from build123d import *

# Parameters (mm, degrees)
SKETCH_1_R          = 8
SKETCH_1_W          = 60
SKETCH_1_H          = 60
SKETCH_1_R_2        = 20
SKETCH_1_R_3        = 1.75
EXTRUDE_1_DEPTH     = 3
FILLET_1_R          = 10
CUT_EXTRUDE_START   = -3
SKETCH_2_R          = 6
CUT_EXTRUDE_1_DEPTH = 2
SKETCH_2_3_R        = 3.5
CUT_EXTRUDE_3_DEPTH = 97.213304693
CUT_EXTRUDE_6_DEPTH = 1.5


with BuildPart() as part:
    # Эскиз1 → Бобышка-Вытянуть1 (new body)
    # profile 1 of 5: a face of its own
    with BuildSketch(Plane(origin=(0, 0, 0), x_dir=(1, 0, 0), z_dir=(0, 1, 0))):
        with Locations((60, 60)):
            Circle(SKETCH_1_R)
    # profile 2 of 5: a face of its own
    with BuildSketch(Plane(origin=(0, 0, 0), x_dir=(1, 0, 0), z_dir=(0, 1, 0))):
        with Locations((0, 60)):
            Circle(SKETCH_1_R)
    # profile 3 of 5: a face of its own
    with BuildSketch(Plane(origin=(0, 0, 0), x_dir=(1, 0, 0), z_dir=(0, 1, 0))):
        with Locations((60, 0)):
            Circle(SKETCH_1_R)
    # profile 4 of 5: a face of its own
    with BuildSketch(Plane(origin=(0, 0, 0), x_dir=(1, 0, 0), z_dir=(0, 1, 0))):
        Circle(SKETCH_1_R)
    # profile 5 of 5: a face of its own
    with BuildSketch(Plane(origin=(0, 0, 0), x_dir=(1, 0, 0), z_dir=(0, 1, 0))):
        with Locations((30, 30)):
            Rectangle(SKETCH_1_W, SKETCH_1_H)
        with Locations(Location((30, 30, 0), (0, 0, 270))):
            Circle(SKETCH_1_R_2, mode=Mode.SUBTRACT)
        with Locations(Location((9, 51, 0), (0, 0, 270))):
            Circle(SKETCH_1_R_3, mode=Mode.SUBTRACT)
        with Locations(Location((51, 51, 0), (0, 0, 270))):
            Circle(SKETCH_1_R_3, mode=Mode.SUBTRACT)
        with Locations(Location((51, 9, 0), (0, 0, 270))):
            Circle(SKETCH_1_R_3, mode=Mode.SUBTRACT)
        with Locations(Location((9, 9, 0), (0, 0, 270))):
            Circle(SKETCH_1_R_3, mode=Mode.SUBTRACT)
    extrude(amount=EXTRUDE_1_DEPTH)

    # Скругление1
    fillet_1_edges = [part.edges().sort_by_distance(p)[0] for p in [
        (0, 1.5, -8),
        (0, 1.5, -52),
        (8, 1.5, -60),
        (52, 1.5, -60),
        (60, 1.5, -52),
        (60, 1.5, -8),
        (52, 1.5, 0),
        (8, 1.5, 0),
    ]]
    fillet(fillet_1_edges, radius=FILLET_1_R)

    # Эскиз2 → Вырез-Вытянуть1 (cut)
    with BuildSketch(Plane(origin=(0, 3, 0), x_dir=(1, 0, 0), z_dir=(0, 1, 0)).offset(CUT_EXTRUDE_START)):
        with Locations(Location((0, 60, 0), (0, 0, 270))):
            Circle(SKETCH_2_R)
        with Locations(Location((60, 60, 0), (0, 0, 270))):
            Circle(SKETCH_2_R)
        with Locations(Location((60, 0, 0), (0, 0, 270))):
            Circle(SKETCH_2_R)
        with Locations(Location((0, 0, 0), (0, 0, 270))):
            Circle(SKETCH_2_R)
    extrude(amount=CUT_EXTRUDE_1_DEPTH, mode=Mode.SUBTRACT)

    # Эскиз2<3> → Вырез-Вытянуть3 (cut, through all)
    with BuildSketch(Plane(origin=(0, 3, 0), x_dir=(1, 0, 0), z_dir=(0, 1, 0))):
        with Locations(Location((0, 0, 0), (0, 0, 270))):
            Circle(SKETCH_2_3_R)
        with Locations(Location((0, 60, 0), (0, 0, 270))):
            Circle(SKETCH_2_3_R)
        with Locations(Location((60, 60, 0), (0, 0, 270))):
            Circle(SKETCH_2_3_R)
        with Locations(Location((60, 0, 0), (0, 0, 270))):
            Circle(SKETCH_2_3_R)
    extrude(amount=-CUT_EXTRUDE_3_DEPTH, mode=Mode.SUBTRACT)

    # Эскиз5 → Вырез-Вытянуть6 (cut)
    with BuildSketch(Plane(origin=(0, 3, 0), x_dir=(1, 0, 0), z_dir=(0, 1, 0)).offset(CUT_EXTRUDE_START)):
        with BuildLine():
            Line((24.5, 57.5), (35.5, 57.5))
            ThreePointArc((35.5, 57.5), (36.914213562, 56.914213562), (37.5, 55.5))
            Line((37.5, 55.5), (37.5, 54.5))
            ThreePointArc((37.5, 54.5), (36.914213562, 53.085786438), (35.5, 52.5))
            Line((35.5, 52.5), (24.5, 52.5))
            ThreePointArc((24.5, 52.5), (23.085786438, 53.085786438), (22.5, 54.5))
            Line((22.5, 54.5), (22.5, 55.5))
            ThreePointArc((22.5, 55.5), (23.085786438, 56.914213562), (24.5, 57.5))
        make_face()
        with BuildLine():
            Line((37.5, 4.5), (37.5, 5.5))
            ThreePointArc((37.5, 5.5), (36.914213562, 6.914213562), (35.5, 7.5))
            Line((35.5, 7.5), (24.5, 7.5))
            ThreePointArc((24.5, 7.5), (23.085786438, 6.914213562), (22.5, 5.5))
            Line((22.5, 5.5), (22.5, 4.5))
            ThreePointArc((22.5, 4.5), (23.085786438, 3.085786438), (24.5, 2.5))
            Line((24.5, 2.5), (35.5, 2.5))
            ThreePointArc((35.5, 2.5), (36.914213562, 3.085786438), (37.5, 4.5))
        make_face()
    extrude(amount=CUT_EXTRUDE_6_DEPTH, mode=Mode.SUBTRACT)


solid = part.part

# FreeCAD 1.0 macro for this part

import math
import FreeCAD as App
import Part
import Sketcher

V = App.Vector
Q = App.Units.Quantity


def edges_at(feature, points):
    """Names of the edges that pass closest to the given points."""
    edges = feature.Shape.Edges
    near = lambda p: min(range(len(edges)), key=lambda i: edges[i].distToShape(Part.Vertex(*p))[0])
    return sorted({f"Edge{near(p) + 1}" for p in points})

doc = App.newDocument("Part")
body = doc.addObject("PartDesign::Body", "Body")

# Sketch on XZ plane
sketch1 = body.newObject("Sketcher::SketchObject", "Sketch")
sketch1.AttachmentSupport = (doc.getObject("XZ_Plane"), [""])
sketch1.MapMode = "FlatFace"
sketch1.addGeometry(Part.ArcOfCircle(Part.Circle(V(60, -60, 0), V(0, 0, 1), 8), math.radians(180), math.radians(450)), False)
sketch1.addGeometry(Part.LineSegment(V(52, -60, 0), V(8, -60, 0)), False)
sketch1.addGeometry(Part.ArcOfCircle(Part.Circle(V(0, -60, 0), V(0, 0, 1), 8), math.radians(90), math.radians(360)), False)
sketch1.addGeometry(Part.LineSegment(V(0, -52, 0), V(0, -8, 0)), False)
sketch1.addGeometry(Part.ArcOfCircle(Part.Circle(V(0, 0, 0), V(0, 0, 1), 8), math.radians(0), math.radians(270)), False)
sketch1.addGeometry(Part.LineSegment(V(8, 0, 0), V(52, 0, 0)), False)
sketch1.addGeometry(Part.ArcOfCircle(Part.Circle(V(60, 0, 0), V(0, 0, 1), 8), math.radians(-90), math.radians(180)), False)
sketch1.addGeometry(Part.LineSegment(V(60, -8, 0), V(60, -52, 0)), False)
sketch1.addGeometry(Part.Circle(V(51, -51, 0), V(0, 0, 1), 1.75), False)
sketch1.addGeometry(Part.Circle(V(9, -9, 0), V(0, 0, 1), 1.75), False)
sketch1.addGeometry(Part.Circle(V(51, -9, 0), V(0, 0, 1), 1.75), False)
sketch1.addGeometry(Part.Circle(V(9, -51, 0), V(0, 0, 1), 1.75), False)
sketch1.addGeometry(Part.Circle(V(30, -30, 0), V(0, 0, 1), 20), False)
sketch1.addConstraint(Sketcher.Constraint("Coincident", 0, 1, 1, 1))
sketch1.addConstraint(Sketcher.Constraint("Coincident", 1, 2, 2, 2))
sketch1.addConstraint(Sketcher.Constraint("Coincident", 2, 1, 3, 1))
sketch1.addConstraint(Sketcher.Constraint("Coincident", 3, 2, 4, 2))
sketch1.addConstraint(Sketcher.Constraint("Coincident", 4, 1, 5, 1))
sketch1.addConstraint(Sketcher.Constraint("Coincident", 5, 2, 6, 2))
sketch1.addConstraint(Sketcher.Constraint("Coincident", 6, 1, 7, 1))
sketch1.addConstraint(Sketcher.Constraint("Coincident", 7, 2, 0, 2))
sketch1.addConstraint(Sketcher.Constraint("Horizontal", 1))
sketch1.addConstraint(Sketcher.Constraint("Vertical", 3))
sketch1.addConstraint(Sketcher.Constraint("Horizontal", 5))
sketch1.addConstraint(Sketcher.Constraint("Vertical", 7))
sketch1.addConstraint(Sketcher.Constraint("Coincident", 4, 3, -1, 1))
sketch1.addConstraint(Sketcher.Constraint("Equal", 0, 2))
sketch1.addConstraint(Sketcher.Constraint("Equal", 2, 4))
sketch1.addConstraint(Sketcher.Constraint("Equal", 4, 6))
sketch1.addConstraint(Sketcher.Constraint("Equal", 8, 9))
sketch1.addConstraint(Sketcher.Constraint("Equal", 9, 10))
sketch1.addConstraint(Sketcher.Constraint("Equal", 10, 11))
sketch1.addConstraint(Sketcher.Constraint("PointOnObject", 2, 3, -2))
sketch1.addConstraint(Sketcher.Constraint("PointOnObject", 6, 3, -1))
sketch1.addConstraint(Sketcher.Constraint("PointOnObject", 2, 1, -2))
sketch1.addConstraint(Sketcher.Constraint("PointOnObject", 4, 1, -1))
sketch1.addConstraint(Sketcher.Constraint("Horizontal", 0, 3, 2, 3))
sketch1.addConstraint(Sketcher.Constraint("Horizontal", 9, 3, 10, 3))
sketch1.addConstraint(Sketcher.Constraint("Horizontal", 8, 3, 11, 3))
sketch1.addConstraint(Sketcher.Constraint("Horizontal", 2, 3, 0, 1))
sketch1.addConstraint(Sketcher.Constraint("Vertical", 0, 3, 6, 3))
sketch1.addConstraint(Sketcher.Constraint("Vertical", 8, 3, 10, 3))
sketch1.addConstraint(Sketcher.Constraint("Vertical", 9, 3, 11, 3))
sketch1.addConstraint(Sketcher.Constraint("Vertical", 0, 3, 6, 1))
sketch1.addConstraint(Sketcher.Constraint("Equal", 5, 3))
sketch1.addConstraint(Sketcher.Constraint("Diameter", 12, Q("40 mm")))
sketch1.addConstraint(Sketcher.Constraint("Radius", 0, Q("8 mm")))
sketch1.addConstraint(Sketcher.Constraint("Diameter", 8, Q("3.5 mm")))
sketch1.addConstraint(Sketcher.Constraint("DistanceX", 1, 2, 1, 1, Q("44 mm")))
sketch1.addConstraint(Sketcher.Constraint("DistanceX", -1, 1, 8, 3, Q("51 mm")))
sketch1.addConstraint(Sketcher.Constraint("DistanceY", 8, 3, -1, 1, Q("51 mm")))
sketch1.addConstraint(Sketcher.Constraint("DistanceX", -1, 1, 9, 3, Q("9 mm")))
sketch1.addConstraint(Sketcher.Constraint("DistanceY", 9, 3, -1, 1, Q("9 mm")))
sketch1.addConstraint(Sketcher.Constraint("DistanceX", -1, 1, 12, 3, Q("30 mm")))
sketch1.addConstraint(Sketcher.Constraint("DistanceY", 12, 3, -1, 1, Q("30 mm")))
pad1 = body.newObject("PartDesign::Pad", "Pad")
pad1.Profile = sketch1
pad1.Length = 3
pad1.Reversed = True
doc.recompute()

fillet = body.newObject("PartDesign::Fillet", "Fillet")
fillet.Base = (pad1, edges_at(pad1, [
    (0, 1.5, -8),
    (0, 1.5, -52),
    (8, 1.5, -60),
    (52, 1.5, -60),
    (60, 1.5, -52),
    (60, 1.5, -8),
    (52, 1.5, 0),
    (8, 1.5, 0),
]))
fillet.Radius = 10

# Sketch on XZ plane
sketch2 = body.newObject("Sketcher::SketchObject", "Sketch001")
sketch2.AttachmentSupport = (doc.getObject("XZ_Plane"), [""])
sketch2.MapMode = "FlatFace"
sketch2.addGeometry(Part.Circle(V(0, -60, 0), V(0, 0, 1), 6), False)
sketch2.addGeometry(Part.Circle(V(60, -60, 0), V(0, 0, 1), 6), False)
sketch2.addGeometry(Part.Circle(V(60, 0, 0), V(0, 0, 1), 6), False)
sketch2.addGeometry(Part.Circle(V(0, 0, 0), V(0, 0, 1), 6), False)
sketch2.addConstraint(Sketcher.Constraint("Coincident", 3, 3, -1, 1))
sketch2.addConstraint(Sketcher.Constraint("Equal", 0, 1))
sketch2.addConstraint(Sketcher.Constraint("Equal", 1, 2))
sketch2.addConstraint(Sketcher.Constraint("Equal", 2, 3))
sketch2.addConstraint(Sketcher.Constraint("PointOnObject", 0, 3, -2))
sketch2.addConstraint(Sketcher.Constraint("PointOnObject", 2, 3, -1))
sketch2.addConstraint(Sketcher.Constraint("Horizontal", 0, 3, 1, 3))
sketch2.addConstraint(Sketcher.Constraint("Vertical", 1, 3, 2, 3))
sketch2.addConstraint(Sketcher.Constraint("Diameter", 0, Q("12 mm")))
sketch2.addConstraint(Sketcher.Constraint("DistanceY", 0, 3, -1, 1, Q("60 mm")))
sketch2.addConstraint(Sketcher.Constraint("DistanceX", -1, 1, 1, 3, Q("60 mm")))
pocket1 = body.newObject("PartDesign::Pocket", "Pocket")
pocket1.Profile = sketch2
pocket1.Length = 2

# Sketch on XZ plane
sketch3 = body.newObject("Sketcher::SketchObject", "Sketch002")
sketch3.AttachmentSupport = (doc.getObject("XZ_Plane"), [""])
sketch3.MapMode = "FlatFace"
sketch3.AttachmentOffset = App.Placement(V(0, 0, -3), App.Rotation())
sketch3.addGeometry(Part.Circle(V(0, 0, 0), V(0, 0, 1), 3.5), False)
sketch3.addGeometry(Part.Circle(V(0, -60, 0), V(0, 0, 1), 3.5), False)
sketch3.addGeometry(Part.Circle(V(60, -60, 0), V(0, 0, 1), 3.5), False)
sketch3.addGeometry(Part.Circle(V(60, 0, 0), V(0, 0, 1), 3.5), False)
sketch3.addConstraint(Sketcher.Constraint("Coincident", 0, 3, -1, 1))
sketch3.addConstraint(Sketcher.Constraint("Equal", 0, 1))
sketch3.addConstraint(Sketcher.Constraint("Equal", 1, 2))
sketch3.addConstraint(Sketcher.Constraint("Equal", 2, 3))
sketch3.addConstraint(Sketcher.Constraint("PointOnObject", 1, 3, -2))
sketch3.addConstraint(Sketcher.Constraint("PointOnObject", 3, 3, -1))
sketch3.addConstraint(Sketcher.Constraint("Horizontal", 1, 3, 2, 3))
sketch3.addConstraint(Sketcher.Constraint("Vertical", 2, 3, 3, 3))
sketch3.addConstraint(Sketcher.Constraint("Diameter", 0, Q("7 mm")))
sketch3.addConstraint(Sketcher.Constraint("DistanceY", 1, 3, -1, 1, Q("60 mm")))
sketch3.addConstraint(Sketcher.Constraint("DistanceX", -1, 1, 2, 3, Q("60 mm")))
pocket2 = body.newObject("PartDesign::Pocket", "Pocket001")
pocket2.Profile = sketch3
pocket2.Type = "ThroughAll"
pocket2.Reversed = True

# Sketch on XZ plane
sketch4 = body.newObject("Sketcher::SketchObject", "Sketch003")
sketch4.AttachmentSupport = (doc.getObject("XZ_Plane"), [""])
sketch4.MapMode = "FlatFace"
sketch4.addGeometry(Part.LineSegment(V(35.5, -57.5, 0), V(24.5, -57.5, 0)), False)
sketch4.addGeometry(Part.ArcOfCircle(Part.Circle(V(24.5, -55.5, 0), V(0, 0, 1), 2), math.radians(-180), math.radians(-90)), False)
sketch4.addGeometry(Part.LineSegment(V(22.5, -55.5, 0), V(22.5, -54.5, 0)), False)
sketch4.addGeometry(Part.ArcOfCircle(Part.Circle(V(24.5, -54.5, 0), V(0, 0, 1), 2), math.radians(90), math.radians(180)), False)
sketch4.addGeometry(Part.LineSegment(V(24.5, -52.5, 0), V(35.5, -52.5, 0)), False)
sketch4.addGeometry(Part.ArcOfCircle(Part.Circle(V(35.5, -54.5, 0), V(0, 0, 1), 2), math.radians(0), math.radians(90)), False)
sketch4.addGeometry(Part.LineSegment(V(37.5, -54.5, 0), V(37.5, -55.5, 0)), False)
sketch4.addGeometry(Part.ArcOfCircle(Part.Circle(V(35.5, -55.5, 0), V(0, 0, 1), 2), math.radians(-90), math.radians(0)), False)
sketch4.addGeometry(Part.LineSegment(V(37.5, -4.5, 0), V(37.5, -5.5, 0)), False)
sketch4.addGeometry(Part.ArcOfCircle(Part.Circle(V(35.5, -5.5, 0), V(0, 0, 1), 2), math.radians(-90), math.radians(0)), False)
sketch4.addGeometry(Part.LineSegment(V(35.5, -7.5, 0), V(24.5, -7.5, 0)), False)
sketch4.addGeometry(Part.ArcOfCircle(Part.Circle(V(24.5, -5.5, 0), V(0, 0, 1), 2), math.radians(-180), math.radians(-90)), False)
sketch4.addGeometry(Part.LineSegment(V(22.5, -5.5, 0), V(22.5, -4.5, 0)), False)
sketch4.addGeometry(Part.ArcOfCircle(Part.Circle(V(24.5, -4.5, 0), V(0, 0, 1), 2), math.radians(90), math.radians(180)), False)
sketch4.addGeometry(Part.LineSegment(V(24.5, -2.5, 0), V(35.5, -2.5, 0)), False)
sketch4.addGeometry(Part.ArcOfCircle(Part.Circle(V(35.5, -4.5, 0), V(0, 0, 1), 2), math.radians(0), math.radians(90)), False)
sketch4.addConstraint(Sketcher.Constraint("Tangent", 0, 2, 1, 2))
sketch4.addConstraint(Sketcher.Constraint("Tangent", 1, 1, 2, 1))
sketch4.addConstraint(Sketcher.Constraint("Tangent", 2, 2, 3, 2))
sketch4.addConstraint(Sketcher.Constraint("Tangent", 3, 1, 4, 1))
sketch4.addConstraint(Sketcher.Constraint("Tangent", 4, 2, 5, 2))
sketch4.addConstraint(Sketcher.Constraint("Tangent", 5, 1, 6, 1))
sketch4.addConstraint(Sketcher.Constraint("Tangent", 6, 2, 7, 2))
sketch4.addConstraint(Sketcher.Constraint("Tangent", 7, 1, 0, 1))
sketch4.addConstraint(Sketcher.Constraint("Tangent", 8, 2, 9, 2))
sketch4.addConstraint(Sketcher.Constraint("Tangent", 9, 1, 10, 1))
sketch4.addConstraint(Sketcher.Constraint("Tangent", 10, 2, 11, 2))
sketch4.addConstraint(Sketcher.Constraint("Tangent", 11, 1, 12, 1))
sketch4.addConstraint(Sketcher.Constraint("Tangent", 12, 2, 13, 2))
sketch4.addConstraint(Sketcher.Constraint("Tangent", 13, 1, 14, 1))
sketch4.addConstraint(Sketcher.Constraint("Tangent", 14, 2, 15, 2))
sketch4.addConstraint(Sketcher.Constraint("Tangent", 15, 1, 8, 1))
sketch4.addConstraint(Sketcher.Constraint("Horizontal", 0))
sketch4.addConstraint(Sketcher.Constraint("Vertical", 2))
sketch4.addConstraint(Sketcher.Constraint("Horizontal", 4))
sketch4.addConstraint(Sketcher.Constraint("Vertical", 6))
sketch4.addConstraint(Sketcher.Constraint("Vertical", 8))
sketch4.addConstraint(Sketcher.Constraint("Horizontal", 10))
sketch4.addConstraint(Sketcher.Constraint("Vertical", 12))
sketch4.addConstraint(Sketcher.Constraint("Horizontal", 14))
sketch4.addConstraint(Sketcher.Constraint("Equal", 1, 3))
sketch4.addConstraint(Sketcher.Constraint("Equal", 3, 5))
sketch4.addConstraint(Sketcher.Constraint("Equal", 5, 7))
sketch4.addConstraint(Sketcher.Constraint("Equal", 7, 9))
sketch4.addConstraint(Sketcher.Constraint("Equal", 9, 11))
sketch4.addConstraint(Sketcher.Constraint("Equal", 11, 13))
sketch4.addConstraint(Sketcher.Constraint("Equal", 13, 15))
sketch4.addConstraint(Sketcher.Constraint("Vertical", 7, 3, 9, 3))
sketch4.addConstraint(Sketcher.Constraint("Vertical", 3, 3, 11, 3))
sketch4.addConstraint(Sketcher.Constraint("Equal", 6, 8))
sketch4.addConstraint(Sketcher.Constraint("Radius", 1, Q("2 mm")))
sketch4.addConstraint(Sketcher.Constraint("DistanceX", 0, 2, 0, 1, Q("11 mm")))
sketch4.addConstraint(Sketcher.Constraint("DistanceY", 2, 1, 2, 2, Q("1 mm")))
sketch4.addConstraint(Sketcher.Constraint("DistanceY", 5, 3, 9, 3, Q("49 mm")))
sketch4.addConstraint(Sketcher.Constraint("DistanceX", -1, 1, 1, 3, Q("24.5 mm")))
sketch4.addConstraint(Sketcher.Constraint("DistanceY", 1, 3, -1, 1, Q("55.5 mm")))
pocket3 = body.newObject("PartDesign::Pocket", "Pocket002")
pocket3.Profile = sketch4
pocket3.Length = 1.5

doc.recompute()
